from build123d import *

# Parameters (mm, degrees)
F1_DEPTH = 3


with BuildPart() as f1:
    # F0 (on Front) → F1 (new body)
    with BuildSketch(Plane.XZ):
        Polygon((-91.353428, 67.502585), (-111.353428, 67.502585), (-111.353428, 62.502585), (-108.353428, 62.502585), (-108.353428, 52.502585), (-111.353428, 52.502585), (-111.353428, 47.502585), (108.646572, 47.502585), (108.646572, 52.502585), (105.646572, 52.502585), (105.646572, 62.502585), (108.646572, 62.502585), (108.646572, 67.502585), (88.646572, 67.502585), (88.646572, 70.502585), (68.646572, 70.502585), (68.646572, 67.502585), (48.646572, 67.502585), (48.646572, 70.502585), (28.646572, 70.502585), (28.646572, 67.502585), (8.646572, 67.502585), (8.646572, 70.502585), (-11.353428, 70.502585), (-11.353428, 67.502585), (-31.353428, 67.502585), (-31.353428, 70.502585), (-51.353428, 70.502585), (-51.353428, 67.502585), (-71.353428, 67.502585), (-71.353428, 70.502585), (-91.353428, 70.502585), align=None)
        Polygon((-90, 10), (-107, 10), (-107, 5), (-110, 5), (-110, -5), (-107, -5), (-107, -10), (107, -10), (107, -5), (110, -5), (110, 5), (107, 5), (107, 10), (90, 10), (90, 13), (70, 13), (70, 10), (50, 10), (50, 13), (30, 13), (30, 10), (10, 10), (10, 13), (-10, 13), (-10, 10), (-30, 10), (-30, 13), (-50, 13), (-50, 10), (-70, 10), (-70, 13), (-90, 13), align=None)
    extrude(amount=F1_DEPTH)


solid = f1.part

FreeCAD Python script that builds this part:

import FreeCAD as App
import Part
import Sketcher
Q = App.Units.Quantity

doc = App.newDocument("Part")
body = doc.addObject("PartDesign::Body", "Body")
body.AllowCompound = True

# Sketch on XZ plane
sketch1 = body.newObject("Sketcher::SketchObject", "Sketch")
sketch1.AttachmentSupport = (doc.getObject("XZ_Plane"), [""])
sketch1.MapMode = "FlatFace"
sketch1.addGeometry(Part.LineSegment(App.Vector(-91.4, 67.5, 0), App.Vector(-111.4, 67.5, 0)), False)
sketch1.addGeometry(Part.LineSegment(App.Vector(-111.4, 67.5, 0), App.Vector(-111.4, 62.5, 0)), False)
sketch1.addGeometry(Part.LineSegment(App.Vector(-111.4, 62.5, 0), App.Vector(-108.4, 62.5, 0)), False)
sketch1.addGeometry(Part.LineSegment(App.Vector(-108.4, 62.5, 0), App.Vector(-108.4, 52.5, 0)), False)
sketch1.addGeometry(Part.LineSegment(App.Vector(-108.4, 52.5, 0), App.Vector(-111.4, 52.5, 0)), False)
sketch1.addGeometry(Part.LineSegment(App.Vector(-111.4, 52.5, 0), App.Vector(-111.4, 47.5, 0)), False)
sketch1.addGeometry(Part.LineSegment(App.Vector(-111.4, 47.5, 0), App.Vector(108.6, 47.5, 0)), False)
sketch1.addGeometry(Part.LineSegment(App.Vector(108.6, 47.5, 0), App.Vector(108.6, 52.5, 0)), False)
sketch1.addGeometry(Part.LineSegment(App.Vector(108.6, 52.5, 0), App.Vector(105.6, 52.5, 0)), False)
sketch1.addGeometry(Part.LineSegment(App.Vector(105.6, 52.5, 0), App.Vector(105.6, 62.5, 0)), False)
sketch1.addGeometry(Part.LineSegment(App.Vector(105.6, 62.5, 0), App.Vector(108.6, 62.5, 0)), False)
sketch1.addGeometry(Part.LineSegment(App.Vector(108.6, 62.5, 0), App.Vector(108.6, 67.5, 0)), False)
sketch1.addGeometry(Part.LineSegment(App.Vector(108.6, 67.5, 0), App.Vector(88.6, 67.5, 0)), False)
sketch1.addGeometry(Part.LineSegment(App.Vector(88.6, 67.5, 0), App.Vector(88.6, 70.5, 0)), False)
sketch1.addGeometry(Part.LineSegment(App.Vector(88.6, 70.5, 0), App.Vector(68.6, 70.5, 0)), False)
sketch1.addGeometry(Part.LineSegment(App.Vector(68.6, 70.5, 0), App.Vector(68.6, 67.5, 0)), False)
sketch1.addGeometry(Part.LineSegment(App.Vector(68.6, 67.5, 0), App.Vector(48.6, 67.5, 0)), False)
sketch1.addGeometry(Part.LineSegment(App.Vector(48.6, 67.5, 0), App.Vector(48.6, 70.5, 0)), False)
sketch1.addGeometry(Part.LineSegment(App.Vector(48.6, 70.5, 0), App.Vector(28.6, 70.5, 0)), False)
sketch1.addGeometry(Part.LineSegment(App.Vector(28.6, 70.5, 0), App.Vector(28.6, 67.5, 0)), False)
sketch1.addGeometry(Part.LineSegment(App.Vector(28.6, 67.5, 0), App.Vector(8.6, 67.5, 0)), False)
sketch1.addGeometry(Part.LineSegment(App.Vector(8.6, 67.5, 0), App.Vector(8.6, 70.5, 0)), False)
sketch1.addGeometry(Part.LineSegment(App.Vector(8.6, 70.5, 0), App.Vector(-11.4, 70.5, 0)), False)
sketch1.addGeometry(Part.LineSegment(App.Vector(-11.4, 70.5, 0), App.Vector(-11.4, 67.5, 0)), False)
sketch1.addGeometry(Part.LineSegment(App.Vector(-11.4, 67.5, 0), App.Vector(-31.4, 67.5, 0)), False)
sketch1.addGeometry(Part.LineSegment(App.Vector(-31.4, 67.5, 0), App.Vector(-31.4, 70.5, 0)), False)
sketch1.addGeometry(Part.LineSegment(App.Vector(-31.4, 70.5, 0), App.Vector(-51.4, 70.5, 0)), False)
sketch1.addGeometry(Part.LineSegment(App.Vector(-51.4, 70.5, 0), App.Vector(-51.4, 67.5, 0)), False)
sketch1.addGeometry(Part.LineSegment(App.Vector(-51.4, 67.5, 0), App.Vector(-71.4, 67.5, 0)), False)
sketch1.addGeometry(Part.LineSegment(App.Vector(-71.4, 67.5, 0), App.Vector(-71.4, 70.5, 0)), False)
sketch1.addGeometry(Part.LineSegment(App.Vector(-71.4, 70.5, 0), App.Vector(-91.4, 70.5, 0)), False)
sketch1.addGeometry(Part.LineSegment(App.Vector(-91.4, 70.5, 0), App.Vector(-91.4, 67.5, 0)), False)
sketch1.addGeometry(Part.LineSegment(App.Vector(-90, 10, 0), App.Vector(-107, 10, 0)), False)
sketch1.addGeometry(Part.LineSegment(App.Vector(-107, 10, 0), App.Vector(-107, 5, 0)), False)
sketch1.addGeometry(Part.LineSegment(App.Vector(-107, 5, 0), App.Vector(-110, 5, 0)), False)
sketch1.addGeometry(Part.LineSegment(App.Vector(-110, 5, 0), App.Vector(-110, -5, 0)), False)
sketch1.addGeometry(Part.LineSegment(App.Vector(-110, -5, 0), App.Vector(-107, -5, 0)), False)
sketch1.addGeometry(Part.LineSegment(App.Vector(-107, -5, 0), App.Vector(-107, -10, 0)), False)
sketch1.addGeometry(Part.LineSegment(App.Vector(-107, -10, 0), App.Vector(107, -10, 0)), False)
sketch1.addGeometry(Part.LineSegment(App.Vector(107, -10, 0), App.Vector(107, -5, 0)), False)
sketch1.addGeometry(Part.LineSegment(App.Vector(107, -5, 0), App.Vector(110, -5, 0)), False)
sketch1.addGeometry(Part.LineSegment(App.Vector(110, -5, 0), App.Vector(110, 5, 0)), False)
sketch1.addGeometry(Part.LineSegment(App.Vector(110, 5, 0), App.Vector(107, 5, 0)), False)
sketch1.addGeometry(Part.LineSegment(App.Vector(107, 5, 0), App.Vector(107, 10, 0)), False)
sketch1.addGeometry(Part.LineSegment(App.Vector(107, 10, 0), App.Vector(90, 10, 0)), False)
sketch1.addGeometry(Part.LineSegment(App.Vector(90, 10, 0), App.Vector(90, 13, 0)), False)
sketch1.addGeometry(Part.LineSegment(App.Vector(90, 13, 0), App.Vector(70, 13, 0)), False)
sketch1.addGeometry(Part.LineSegment(App.Vector(70, 13, 0), App.Vector(70, 10, 0)), False)
sketch1.addGeometry(Part.LineSegment(App.Vector(70, 10, 0), App.Vector(50, 10, 0)), False)
sketch1.addGeometry(Part.LineSegment(App.Vector(50, 10, 0), App.Vector(50, 13, 0)), False)
sketch1.addGeometry(Part.LineSegment(App.Vector(50, 13, 0), App.Vector(30, 13, 0)), False)
sketch1.addGeometry(Part.LineSegment(App.Vector(30, 13, 0), App.Vector(30, 10, 0)), False)
sketch1.addGeometry(Part.LineSegment(App.Vector(30, 10, 0), App.Vector(10, 10, 0)), False)
sketch1.addGeometry(Part.LineSegment(App.Vector(10, 10, 0), App.Vector(10, 13, 0)), False)
sketch1.addGeometry(Part.LineSegment(App.Vector(10, 13, 0), App.Vector(-10, 13, 0)), False)
sketch1.addGeometry(Part.LineSegment(App.Vector(-10, 13, 0), App.Vector(-10, 10, 0)), False)
sketch1.addGeometry(Part.LineSegment(App.Vector(-10, 10, 0), App.Vector(-30, 10, 0)), False)
sketch1.addGeometry(Part.LineSegment(App.Vector(-30, 10, 0), App.Vector(-30, 13, 0)), False)
sketch1.addGeometry(Part.LineSegment(App.Vector(-30, 13, 0), App.Vector(-50, 13, 0)), False)
sketch1.addGeometry(Part.LineSegment(App.Vector(-50, 13, 0), App.Vector(-50, 10, 0)), False)
sketch1.addGeometry(Part.LineSegment(App.Vector(-50, 10, 0), App.Vector(-70, 10, 0)), False)
sketch1.addGeometry(Part.LineSegment(App.Vector(-70, 10, 0), App.Vector(-70, 13, 0)), False)
sketch1.addGeometry(Part.LineSegment(App.Vector(-70, 13, 0), App.Vector(-90, 13, 0)), False)
sketch1.addGeometry(Part.LineSegment(App.Vector(-90, 13, 0), App.Vector(-90, 10, 0)), False)
sketch1.addConstraint(Sketcher.Constraint("Coincident", 0, 2, 1, 1))
sketch1.addConstraint(Sketcher.Constraint("Coincident", 1, 2, 2, 1))
sketch1.addConstraint(Sketcher.Constraint("Coincident", 2, 2, 3, 1))
sketch1.addConstraint(Sketcher.Constraint("Coincident", 3, 2, 4, 1))
sketch1.addConstraint(Sketcher.Constraint("Coincident", 4, 2, 5, 1))
sketch1.addConstraint(Sketcher.Constraint("Coincident", 5, 2, 6, 1))
sketch1.addConstraint(Sketcher.Constraint("Coincident", 6, 2, 7, 1))
sketch1.addConstraint(Sketcher.Constraint("Coincident", 7, 2, 8, 1))
sketch1.addConstraint(Sketcher.Constraint("Coincident", 8, 2, 9, 1))
sketch1.addConstraint(Sketcher.Constraint("Coincident", 9, 2, 10, 1))
sketch1.addConstraint(Sketcher.Constraint("Coincident", 10, 2, 11, 1))
sketch1.addConstraint(Sketcher.Constraint("Coincident", 11, 2, 12, 1))
sketch1.addConstraint(Sketcher.Constraint("Coincident", 12, 2, 13, 1))
sketch1.addConstraint(Sketcher.Constraint("Coincident", 13, 2, 14, 1))
sketch1.addConstraint(Sketcher.Constraint("Coincident", 14, 2, 15, 1))
sketch1.addConstraint(Sketcher.Constraint("Coincident", 15, 2, 16, 1))
sketch1.addConstraint(Sketcher.Constraint("Coincident", 16, 2, 17, 1))
sketch1.addConstraint(Sketcher.Constraint("Coincident", 17, 2, 18, 1))
sketch1.addConstraint(Sketcher.Constraint("Coincident", 18, 2, 19, 1))
sketch1.addConstraint(Sketcher.Constraint("Coincident", 19, 2, 20, 1))
sketch1.addConstraint(Sketcher.Constraint("Coincident", 20, 2, 21, 1))
sketch1.addConstraint(Sketcher.Constraint("Coincident", 21, 2, 22, 1))
sketch1.addConstraint(Sketcher.Constraint("Coincident", 22, 2, 23, 1))
sketch1.addConstraint(Sketcher.Constraint("Coincident", 23, 2, 24, 1))
sketch1.addConstraint(Sketcher.Constraint("Coincident", 24, 2, 25, 1))
sketch1.addConstraint(Sketcher.Constraint("Coincident", 25, 2, 26, 1))
sketch1.addConstraint(Sketcher.Constraint("Coincident", 26, 2, 27, 1))
sketch1.addConstraint(Sketcher.Constraint("Coincident", 27, 2, 28, 1))
sketch1.addConstraint(Sketcher.Constraint("Coincident", 28, 2, 29, 1))
sketch1.addConstraint(Sketcher.Constraint("Coincident", 29, 2, 30, 1))
sketch1.addConstraint(Sketcher.Constraint("Coincident", 30, 2, 31, 1))
sketch1.addConstraint(Sketcher.Constraint("Coincident", 31, 2, 0, 1))
sketch1.addConstraint(Sketcher.Constraint("Coincident", 32, 2, 33, 1))
sketch1.addConstraint(Sketcher.Constraint("Coincident", 33, 2, 34, 1))
sketch1.addConstraint(Sketcher.Constraint("Coincident", 34, 2, 35, 1))
sketch1.addConstraint(Sketcher.Constraint("Coincident", 35, 2, 36, 1))
sketch1.addConstraint(Sketcher.Constraint("Coincident", 36, 2, 37, 1))
sketch1.addConstraint(Sketcher.Constraint("Coincident", 37, 2, 38, 1))
sketch1.addConstraint(Sketcher.Constraint("Coincident", 38, 2, 39, 1))
sketch1.addConstraint(Sketcher.Constraint("Coincident", 39, 2, 40, 1))
sketch1.addConstraint(Sketcher.Constraint("Coincident", 40, 2, 41, 1))
sketch1.addConstraint(Sketcher.Constraint("Coincident", 41, 2, 42, 1))
sketch1.addConstraint(Sketcher.Constraint("Coincident", 42, 2, 43, 1))
sketch1.addConstraint(Sketcher.Constraint("Coincident", 43, 2, 44, 1))
sketch1.addConstraint(Sketcher.Constraint("Coincident", 44, 2, 45, 1))
sketch1.addConstraint(Sketcher.Constraint("Coincident", 45, 2, 46, 1))
sketch1.addConstraint(Sketcher.Constraint("Coincident", 46, 2, 47, 1))
sketch1.addConstraint(Sketcher.Constraint("Coincident", 47, 2, 48, 1))
sketch1.addConstraint(Sketcher.Constraint("Coincident", 48, 2, 49, 1))
sketch1.addConstraint(Sketcher.Constraint("Coincident", 49, 2, 50, 1))
sketch1.addConstraint(Sketcher.Constraint("Coincident", 50, 2, 51, 1))
sketch1.addConstraint(Sketcher.Constraint("Coincident", 51, 2, 52, 1))
sketch1.addConstraint(Sketcher.Constraint("Coincident", 52, 2, 53, 1))
sketch1.addConstraint(Sketcher.Constraint("Coincident", 53, 2, 54, 1))
sketch1.addConstraint(Sketcher.Constraint("Coincident", 54, 2, 55, 1))
sketch1.addConstraint(Sketcher.Constraint("Coincident", 55, 2, 56, 1))
sketch1.addConstraint(Sketcher.Constraint("Coincident", 56, 2, 57, 1))
sketch1.addConstraint(Sketcher.Constraint("Coincident", 57, 2, 58, 1))
sketch1.addConstraint(Sketcher.Constraint("Coincident", 58, 2, 59, 1))
sketch1.addConstraint(Sketcher.Constraint("Coincident", 59, 2, 60, 1))
sketch1.addConstraint(Sketcher.Constraint("Coincident", 60, 2, 61, 1))
sketch1.addConstraint(Sketcher.Constraint("Coincident", 61, 2, 62, 1))
sketch1.addConstraint(Sketcher.Constraint("Coincident", 62, 2, 63, 1))
sketch1.addConstraint(Sketcher.Constraint("Coincident", 63, 2, 32, 1))
sketch1.addConstraint(Sketcher.Constraint("Horizontal", 0))
sketch1.addConstraint(Sketcher.Constraint("Vertical", 1))
sketch1.addConstraint(Sketcher.Constraint("Horizontal", 2))
sketch1.addConstraint(Sketcher.Constraint("Vertical", 3))
sketch1.addConstraint(Sketcher.Constraint("Horizontal", 4))
sketch1.addConstraint(Sketcher.Constraint("Vertical", 5))
sketch1.addConstraint(Sketcher.Constraint("Horizontal", 6))
sketch1.addConstraint(Sketcher.Constraint("Vertical", 7))
sketch1.addConstraint(Sketcher.Constraint("Horizontal", 8))
sketch1.addConstraint(Sketcher.Constraint("Vertical", 9))
sketch1.addConstraint(Sketcher.Constraint("Horizontal", 10))
sketch1.addConstraint(Sketcher.Constraint("Vertical", 11))
sketch1.addConstraint(Sketcher.Constraint("Horizontal", 12))
sketch1.addConstraint(Sketcher.Constraint("Vertical", 13))
sketch1.addConstraint(Sketcher.Constraint("Horizontal", 14))
sketch1.addConstraint(Sketcher.Constraint("Vertical", 15))
sketch1.addConstraint(Sketcher.Constraint("Horizontal", 16))
sketch1.addConstraint(Sketcher.Constraint("Vertical", 17))
sketch1.addConstraint(Sketcher.Constraint("Horizontal", 18))
sketch1.addConstraint(Sketcher.Constraint("Vertical", 19))
sketch1.addConstraint(Sketcher.Constraint("Horizontal", 20))
sketch1.addConstraint(Sketcher.Constraint("Vertical", 21))
sketch1.addConstraint(Sketcher.Constraint("Horizontal", 22))
sketch1.addConstraint(Sketcher.Constraint("Vertical", 23))
sketch1.addConstraint(Sketcher.Constraint("Horizontal", 24))
sketch1.addConstraint(Sketcher.Constraint("Vertical", 25))
sketch1.addConstraint(Sketcher.Constraint("Horizontal", 26))
sketch1.addConstraint(Sketcher.Constraint("Vertical", 27))
sketch1.addConstraint(Sketcher.Constraint("Horizontal", 28))
sketch1.addConstraint(Sketcher.Constraint("Vertical", 29))
sketch1.addConstraint(Sketcher.Constraint("Horizontal", 30))
sketch1.addConstraint(Sketcher.Constraint("Vertical", 31))
sketch1.addConstraint(Sketcher.Constraint("Horizontal", 32))
sketch1.addConstraint(Sketcher.Constraint("Vertical", 33))
sketch1.addConstraint(Sketcher.Constraint("Horizontal", 34))
sketch1.addConstraint(Sketcher.Constraint("Vertical", 35))
sketch1.addConstraint(Sketcher.Constraint("Horizontal", 36))
sketch1.addConstraint(Sketcher.Constraint("Vertical", 37))
sketch1.addConstraint(Sketcher.Constraint("Horizontal", 38))
sketch1.addConstraint(Sketcher.Constraint("Vertical", 39))
sketch1.addConstraint(Sketcher.Constraint("Horizontal", 40))
sketch1.addConstraint(Sketcher.Constraint("Vertical", 41))
sketch1.addConstraint(Sketcher.Constraint("Horizontal", 42))
sketch1.addConstraint(Sketcher.Constraint("Vertical", 43))
sketch1.addConstraint(Sketcher.Constraint("Horizontal", 44))
sketch1.addConstraint(Sketcher.Constraint("Vertical", 45))
sketch1.addConstraint(Sketcher.Constraint("Horizontal", 46))
sketch1.addConstraint(Sketcher.Constraint("Vertical", 47))
sketch1.addConstraint(Sketcher.Constraint("Horizontal", 48))
sketch1.addConstraint(Sketcher.Constraint("Vertical", 49))
sketch1.addConstraint(Sketcher.Constraint("Horizontal", 50))
sketch1.addConstraint(Sketcher.Constraint("Vertical", 51))
sketch1.addConstraint(Sketcher.Constraint("Horizontal", 52))
sketch1.addConstraint(Sketcher.Constraint("Vertical", 53))
sketch1.addConstraint(Sketcher.Constraint("Horizontal", 54))
sketch1.addConstraint(Sketcher.Constraint("Vertical", 55))
sketch1.addConstraint(Sketcher.Constraint("Horizontal", 56))
sketch1.addConstraint(Sketcher.Constraint("Vertical", 57))
sketch1.addConstraint(Sketcher.Constraint("Horizontal", 58))
sketch1.addConstraint(Sketcher.Constraint("Vertical", 59))
sketch1.addConstraint(Sketcher.Constraint("Horizontal", 60))
sketch1.addConstraint(Sketcher.Constraint("Vertical", 61))
sketch1.addConstraint(Sketcher.Constraint("Horizontal", 62))
sketch1.addConstraint(Sketcher.Constraint("Vertical", 63))
sketch1.addConstraint(Sketcher.Constraint("Symmetric", 32, 2, 38, 2, -1, 1))
sketch1.addConstraint(Sketcher.Constraint("Symmetric", 34, 2, 40, 2, -1, 1))
sketch1.addConstraint(Sketcher.Constraint("Symmetric", 36, 2, 42, 2, -1, 1))
sketch1.addConstraint(Sketcher.Constraint("Symmetric", 36, 2, 39, 2, -2))
sketch1.addConstraint(Sketcher.Constraint("Symmetric", 52, 2, 55, 2, -2))
sketch1.addConstraint(Sketcher.Constraint("Symmetric", 50, 2, 57, 2, -2))
sketch1.addConstraint(Sketcher.Constraint("Symmetric", 48, 2, 59, 2, -2))
sketch1.addConstraint(Sketcher.Constraint("Symmetric", 46, 2, 61, 2, -2))
sketch1.addConstraint(Sketcher.Constraint("Symmetric", 44, 2, 63, 2, -2))
sketch1.addConstraint(Sketcher.Constraint("Horizontal", 4, 2, 7, 2))
sketch1.addConstraint(Sketcher.Constraint("Horizontal", 2, 2, 9, 2))
sketch1.addConstraint(Sketcher.Constraint("Horizontal", 0, 2, 11, 2))
sketch1.addConstraint(Sketcher.Constraint("Horizontal", 12, 2, 15, 2))
sketch1.addConstraint(Sketcher.Constraint("Horizontal", 14, 2, 17, 2))
sketch1.addConstraint(Sketcher.Constraint("Horizontal", 16, 2, 19, 2))
sketch1.addConstraint(Sketcher.Constraint("Horizontal", 18, 2, 21, 2))
sketch1.addConstraint(Sketcher.Constraint("Horizontal", 20, 2, 23, 2))
sketch1.addConstraint(Sketcher.Constraint("Horizontal", 22, 2, 25, 2))
sketch1.addConstraint(Sketcher.Constraint("Horizontal", 24, 2, 27, 2))
sketch1.addConstraint(Sketcher.Constraint("Horizontal", 26, 2, 29, 2))
sketch1.addConstraint(Sketcher.Constraint("Horizontal", 44, 2, 47, 2))
sketch1.addConstraint(Sketcher.Constraint("Horizontal", 46, 2, 49, 2))
sketch1.addConstraint(Sketcher.Constraint("Horizontal", 48, 2, 51, 2))
sketch1.addConstraint(Sketcher.Constraint("Horizontal", 50, 2, 53, 2))
sketch1.addConstraint(Sketcher.Constraint("Vertical", 1, 2, 4, 2))
sketch1.addConstraint(Sketcher.Constraint("Vertical", 7, 2, 10, 2))
sketch1.addConstraint(Sketcher.Constraint("Equal", 4, 8))
sketch1.addConstraint(Sketcher.Constraint("Equal", 0, 12))
sketch1.addConstraint(Sketcher.Constraint("Equal", 12, 14))
sketch1.addConstraint(Sketcher.Constraint("Equal", 14, 16))
sketch1.addConstraint(Sketcher.Constraint("Equal", 16, 18))
sketch1.addConstraint(Sketcher.Constraint("Equal", 18, 20))
sketch1.addConstraint(Sketcher.Constraint("Equal", 20, 22))
sketch1.addConstraint(Sketcher.Constraint("Equal", 22, 24))
sketch1.addConstraint(Sketcher.Constraint("Equal", 24, 26))
sketch1.addConstraint(Sketcher.Constraint("Equal", 26, 28))
sketch1.addConstraint(Sketcher.Constraint("Equal", 28, 30))
sketch1.addConstraint(Sketcher.Constraint("Equal", 10, 34))
sketch1.addConstraint(Sketcher.Constraint("Equal", 30, 46))
sketch1.addConstraint(Sketcher.Constraint("Equal", 46, 48))
sketch1.addConstraint(Sketcher.Constraint("Equal", 48, 50))
sketch1.addConstraint(Sketcher.Constraint("Equal", 50, 52))
sketch1.addConstraint(Sketcher.Constraint("Equal", 52, 54))
sketch1.addConstraint(Sketcher.Constraint("Equal", 1, 5))
sketch1.addConstraint(Sketcher.Constraint("Equal", 42, 13))
sketch1.addConstraint(Sketcher.Constraint("Equal", 11, 33))
sketch1.addConstraint(Sketcher.Constraint("Equal", 9, 35))
sketch1.addConstraint(Sketcher.Constraint("Equal", 31, 45))
sketch1.addConstraint(Sketcher.Constraint("DistanceX", 0, 2, 0, 1, Q("20 mm")))
sketch1.addConstraint(Sketcher.Constraint("DistanceX", 2, 1, 2, 2, Q("3 mm")))
sketch1.addConstraint(Sketcher.Constraint("DistanceX", 32, 2, 32, 1, Q("17 mm")))
sketch1.addConstraint(Sketcher.Constraint("DistanceY", 1, 2, 1, 1, Q("5 mm")))
sketch1.addConstraint(Sketcher.Constraint("DistanceY", 3, 2, 3, 1, Q("10 mm")))
sketch1.addConstraint(Sketcher.Constraint("DistanceX", -1, 1, 18, 2, Q("28.646572 mm")))
sketch1.addConstraint(Sketcher.Constraint("DistanceY", -1, 1, 0, 2, Q("67.502585 mm")))
pad1 = body.newObject("PartDesign::Pad", "Pad")
pad1.Profile = sketch1
pad1.Length = 3

doc.recompute()
